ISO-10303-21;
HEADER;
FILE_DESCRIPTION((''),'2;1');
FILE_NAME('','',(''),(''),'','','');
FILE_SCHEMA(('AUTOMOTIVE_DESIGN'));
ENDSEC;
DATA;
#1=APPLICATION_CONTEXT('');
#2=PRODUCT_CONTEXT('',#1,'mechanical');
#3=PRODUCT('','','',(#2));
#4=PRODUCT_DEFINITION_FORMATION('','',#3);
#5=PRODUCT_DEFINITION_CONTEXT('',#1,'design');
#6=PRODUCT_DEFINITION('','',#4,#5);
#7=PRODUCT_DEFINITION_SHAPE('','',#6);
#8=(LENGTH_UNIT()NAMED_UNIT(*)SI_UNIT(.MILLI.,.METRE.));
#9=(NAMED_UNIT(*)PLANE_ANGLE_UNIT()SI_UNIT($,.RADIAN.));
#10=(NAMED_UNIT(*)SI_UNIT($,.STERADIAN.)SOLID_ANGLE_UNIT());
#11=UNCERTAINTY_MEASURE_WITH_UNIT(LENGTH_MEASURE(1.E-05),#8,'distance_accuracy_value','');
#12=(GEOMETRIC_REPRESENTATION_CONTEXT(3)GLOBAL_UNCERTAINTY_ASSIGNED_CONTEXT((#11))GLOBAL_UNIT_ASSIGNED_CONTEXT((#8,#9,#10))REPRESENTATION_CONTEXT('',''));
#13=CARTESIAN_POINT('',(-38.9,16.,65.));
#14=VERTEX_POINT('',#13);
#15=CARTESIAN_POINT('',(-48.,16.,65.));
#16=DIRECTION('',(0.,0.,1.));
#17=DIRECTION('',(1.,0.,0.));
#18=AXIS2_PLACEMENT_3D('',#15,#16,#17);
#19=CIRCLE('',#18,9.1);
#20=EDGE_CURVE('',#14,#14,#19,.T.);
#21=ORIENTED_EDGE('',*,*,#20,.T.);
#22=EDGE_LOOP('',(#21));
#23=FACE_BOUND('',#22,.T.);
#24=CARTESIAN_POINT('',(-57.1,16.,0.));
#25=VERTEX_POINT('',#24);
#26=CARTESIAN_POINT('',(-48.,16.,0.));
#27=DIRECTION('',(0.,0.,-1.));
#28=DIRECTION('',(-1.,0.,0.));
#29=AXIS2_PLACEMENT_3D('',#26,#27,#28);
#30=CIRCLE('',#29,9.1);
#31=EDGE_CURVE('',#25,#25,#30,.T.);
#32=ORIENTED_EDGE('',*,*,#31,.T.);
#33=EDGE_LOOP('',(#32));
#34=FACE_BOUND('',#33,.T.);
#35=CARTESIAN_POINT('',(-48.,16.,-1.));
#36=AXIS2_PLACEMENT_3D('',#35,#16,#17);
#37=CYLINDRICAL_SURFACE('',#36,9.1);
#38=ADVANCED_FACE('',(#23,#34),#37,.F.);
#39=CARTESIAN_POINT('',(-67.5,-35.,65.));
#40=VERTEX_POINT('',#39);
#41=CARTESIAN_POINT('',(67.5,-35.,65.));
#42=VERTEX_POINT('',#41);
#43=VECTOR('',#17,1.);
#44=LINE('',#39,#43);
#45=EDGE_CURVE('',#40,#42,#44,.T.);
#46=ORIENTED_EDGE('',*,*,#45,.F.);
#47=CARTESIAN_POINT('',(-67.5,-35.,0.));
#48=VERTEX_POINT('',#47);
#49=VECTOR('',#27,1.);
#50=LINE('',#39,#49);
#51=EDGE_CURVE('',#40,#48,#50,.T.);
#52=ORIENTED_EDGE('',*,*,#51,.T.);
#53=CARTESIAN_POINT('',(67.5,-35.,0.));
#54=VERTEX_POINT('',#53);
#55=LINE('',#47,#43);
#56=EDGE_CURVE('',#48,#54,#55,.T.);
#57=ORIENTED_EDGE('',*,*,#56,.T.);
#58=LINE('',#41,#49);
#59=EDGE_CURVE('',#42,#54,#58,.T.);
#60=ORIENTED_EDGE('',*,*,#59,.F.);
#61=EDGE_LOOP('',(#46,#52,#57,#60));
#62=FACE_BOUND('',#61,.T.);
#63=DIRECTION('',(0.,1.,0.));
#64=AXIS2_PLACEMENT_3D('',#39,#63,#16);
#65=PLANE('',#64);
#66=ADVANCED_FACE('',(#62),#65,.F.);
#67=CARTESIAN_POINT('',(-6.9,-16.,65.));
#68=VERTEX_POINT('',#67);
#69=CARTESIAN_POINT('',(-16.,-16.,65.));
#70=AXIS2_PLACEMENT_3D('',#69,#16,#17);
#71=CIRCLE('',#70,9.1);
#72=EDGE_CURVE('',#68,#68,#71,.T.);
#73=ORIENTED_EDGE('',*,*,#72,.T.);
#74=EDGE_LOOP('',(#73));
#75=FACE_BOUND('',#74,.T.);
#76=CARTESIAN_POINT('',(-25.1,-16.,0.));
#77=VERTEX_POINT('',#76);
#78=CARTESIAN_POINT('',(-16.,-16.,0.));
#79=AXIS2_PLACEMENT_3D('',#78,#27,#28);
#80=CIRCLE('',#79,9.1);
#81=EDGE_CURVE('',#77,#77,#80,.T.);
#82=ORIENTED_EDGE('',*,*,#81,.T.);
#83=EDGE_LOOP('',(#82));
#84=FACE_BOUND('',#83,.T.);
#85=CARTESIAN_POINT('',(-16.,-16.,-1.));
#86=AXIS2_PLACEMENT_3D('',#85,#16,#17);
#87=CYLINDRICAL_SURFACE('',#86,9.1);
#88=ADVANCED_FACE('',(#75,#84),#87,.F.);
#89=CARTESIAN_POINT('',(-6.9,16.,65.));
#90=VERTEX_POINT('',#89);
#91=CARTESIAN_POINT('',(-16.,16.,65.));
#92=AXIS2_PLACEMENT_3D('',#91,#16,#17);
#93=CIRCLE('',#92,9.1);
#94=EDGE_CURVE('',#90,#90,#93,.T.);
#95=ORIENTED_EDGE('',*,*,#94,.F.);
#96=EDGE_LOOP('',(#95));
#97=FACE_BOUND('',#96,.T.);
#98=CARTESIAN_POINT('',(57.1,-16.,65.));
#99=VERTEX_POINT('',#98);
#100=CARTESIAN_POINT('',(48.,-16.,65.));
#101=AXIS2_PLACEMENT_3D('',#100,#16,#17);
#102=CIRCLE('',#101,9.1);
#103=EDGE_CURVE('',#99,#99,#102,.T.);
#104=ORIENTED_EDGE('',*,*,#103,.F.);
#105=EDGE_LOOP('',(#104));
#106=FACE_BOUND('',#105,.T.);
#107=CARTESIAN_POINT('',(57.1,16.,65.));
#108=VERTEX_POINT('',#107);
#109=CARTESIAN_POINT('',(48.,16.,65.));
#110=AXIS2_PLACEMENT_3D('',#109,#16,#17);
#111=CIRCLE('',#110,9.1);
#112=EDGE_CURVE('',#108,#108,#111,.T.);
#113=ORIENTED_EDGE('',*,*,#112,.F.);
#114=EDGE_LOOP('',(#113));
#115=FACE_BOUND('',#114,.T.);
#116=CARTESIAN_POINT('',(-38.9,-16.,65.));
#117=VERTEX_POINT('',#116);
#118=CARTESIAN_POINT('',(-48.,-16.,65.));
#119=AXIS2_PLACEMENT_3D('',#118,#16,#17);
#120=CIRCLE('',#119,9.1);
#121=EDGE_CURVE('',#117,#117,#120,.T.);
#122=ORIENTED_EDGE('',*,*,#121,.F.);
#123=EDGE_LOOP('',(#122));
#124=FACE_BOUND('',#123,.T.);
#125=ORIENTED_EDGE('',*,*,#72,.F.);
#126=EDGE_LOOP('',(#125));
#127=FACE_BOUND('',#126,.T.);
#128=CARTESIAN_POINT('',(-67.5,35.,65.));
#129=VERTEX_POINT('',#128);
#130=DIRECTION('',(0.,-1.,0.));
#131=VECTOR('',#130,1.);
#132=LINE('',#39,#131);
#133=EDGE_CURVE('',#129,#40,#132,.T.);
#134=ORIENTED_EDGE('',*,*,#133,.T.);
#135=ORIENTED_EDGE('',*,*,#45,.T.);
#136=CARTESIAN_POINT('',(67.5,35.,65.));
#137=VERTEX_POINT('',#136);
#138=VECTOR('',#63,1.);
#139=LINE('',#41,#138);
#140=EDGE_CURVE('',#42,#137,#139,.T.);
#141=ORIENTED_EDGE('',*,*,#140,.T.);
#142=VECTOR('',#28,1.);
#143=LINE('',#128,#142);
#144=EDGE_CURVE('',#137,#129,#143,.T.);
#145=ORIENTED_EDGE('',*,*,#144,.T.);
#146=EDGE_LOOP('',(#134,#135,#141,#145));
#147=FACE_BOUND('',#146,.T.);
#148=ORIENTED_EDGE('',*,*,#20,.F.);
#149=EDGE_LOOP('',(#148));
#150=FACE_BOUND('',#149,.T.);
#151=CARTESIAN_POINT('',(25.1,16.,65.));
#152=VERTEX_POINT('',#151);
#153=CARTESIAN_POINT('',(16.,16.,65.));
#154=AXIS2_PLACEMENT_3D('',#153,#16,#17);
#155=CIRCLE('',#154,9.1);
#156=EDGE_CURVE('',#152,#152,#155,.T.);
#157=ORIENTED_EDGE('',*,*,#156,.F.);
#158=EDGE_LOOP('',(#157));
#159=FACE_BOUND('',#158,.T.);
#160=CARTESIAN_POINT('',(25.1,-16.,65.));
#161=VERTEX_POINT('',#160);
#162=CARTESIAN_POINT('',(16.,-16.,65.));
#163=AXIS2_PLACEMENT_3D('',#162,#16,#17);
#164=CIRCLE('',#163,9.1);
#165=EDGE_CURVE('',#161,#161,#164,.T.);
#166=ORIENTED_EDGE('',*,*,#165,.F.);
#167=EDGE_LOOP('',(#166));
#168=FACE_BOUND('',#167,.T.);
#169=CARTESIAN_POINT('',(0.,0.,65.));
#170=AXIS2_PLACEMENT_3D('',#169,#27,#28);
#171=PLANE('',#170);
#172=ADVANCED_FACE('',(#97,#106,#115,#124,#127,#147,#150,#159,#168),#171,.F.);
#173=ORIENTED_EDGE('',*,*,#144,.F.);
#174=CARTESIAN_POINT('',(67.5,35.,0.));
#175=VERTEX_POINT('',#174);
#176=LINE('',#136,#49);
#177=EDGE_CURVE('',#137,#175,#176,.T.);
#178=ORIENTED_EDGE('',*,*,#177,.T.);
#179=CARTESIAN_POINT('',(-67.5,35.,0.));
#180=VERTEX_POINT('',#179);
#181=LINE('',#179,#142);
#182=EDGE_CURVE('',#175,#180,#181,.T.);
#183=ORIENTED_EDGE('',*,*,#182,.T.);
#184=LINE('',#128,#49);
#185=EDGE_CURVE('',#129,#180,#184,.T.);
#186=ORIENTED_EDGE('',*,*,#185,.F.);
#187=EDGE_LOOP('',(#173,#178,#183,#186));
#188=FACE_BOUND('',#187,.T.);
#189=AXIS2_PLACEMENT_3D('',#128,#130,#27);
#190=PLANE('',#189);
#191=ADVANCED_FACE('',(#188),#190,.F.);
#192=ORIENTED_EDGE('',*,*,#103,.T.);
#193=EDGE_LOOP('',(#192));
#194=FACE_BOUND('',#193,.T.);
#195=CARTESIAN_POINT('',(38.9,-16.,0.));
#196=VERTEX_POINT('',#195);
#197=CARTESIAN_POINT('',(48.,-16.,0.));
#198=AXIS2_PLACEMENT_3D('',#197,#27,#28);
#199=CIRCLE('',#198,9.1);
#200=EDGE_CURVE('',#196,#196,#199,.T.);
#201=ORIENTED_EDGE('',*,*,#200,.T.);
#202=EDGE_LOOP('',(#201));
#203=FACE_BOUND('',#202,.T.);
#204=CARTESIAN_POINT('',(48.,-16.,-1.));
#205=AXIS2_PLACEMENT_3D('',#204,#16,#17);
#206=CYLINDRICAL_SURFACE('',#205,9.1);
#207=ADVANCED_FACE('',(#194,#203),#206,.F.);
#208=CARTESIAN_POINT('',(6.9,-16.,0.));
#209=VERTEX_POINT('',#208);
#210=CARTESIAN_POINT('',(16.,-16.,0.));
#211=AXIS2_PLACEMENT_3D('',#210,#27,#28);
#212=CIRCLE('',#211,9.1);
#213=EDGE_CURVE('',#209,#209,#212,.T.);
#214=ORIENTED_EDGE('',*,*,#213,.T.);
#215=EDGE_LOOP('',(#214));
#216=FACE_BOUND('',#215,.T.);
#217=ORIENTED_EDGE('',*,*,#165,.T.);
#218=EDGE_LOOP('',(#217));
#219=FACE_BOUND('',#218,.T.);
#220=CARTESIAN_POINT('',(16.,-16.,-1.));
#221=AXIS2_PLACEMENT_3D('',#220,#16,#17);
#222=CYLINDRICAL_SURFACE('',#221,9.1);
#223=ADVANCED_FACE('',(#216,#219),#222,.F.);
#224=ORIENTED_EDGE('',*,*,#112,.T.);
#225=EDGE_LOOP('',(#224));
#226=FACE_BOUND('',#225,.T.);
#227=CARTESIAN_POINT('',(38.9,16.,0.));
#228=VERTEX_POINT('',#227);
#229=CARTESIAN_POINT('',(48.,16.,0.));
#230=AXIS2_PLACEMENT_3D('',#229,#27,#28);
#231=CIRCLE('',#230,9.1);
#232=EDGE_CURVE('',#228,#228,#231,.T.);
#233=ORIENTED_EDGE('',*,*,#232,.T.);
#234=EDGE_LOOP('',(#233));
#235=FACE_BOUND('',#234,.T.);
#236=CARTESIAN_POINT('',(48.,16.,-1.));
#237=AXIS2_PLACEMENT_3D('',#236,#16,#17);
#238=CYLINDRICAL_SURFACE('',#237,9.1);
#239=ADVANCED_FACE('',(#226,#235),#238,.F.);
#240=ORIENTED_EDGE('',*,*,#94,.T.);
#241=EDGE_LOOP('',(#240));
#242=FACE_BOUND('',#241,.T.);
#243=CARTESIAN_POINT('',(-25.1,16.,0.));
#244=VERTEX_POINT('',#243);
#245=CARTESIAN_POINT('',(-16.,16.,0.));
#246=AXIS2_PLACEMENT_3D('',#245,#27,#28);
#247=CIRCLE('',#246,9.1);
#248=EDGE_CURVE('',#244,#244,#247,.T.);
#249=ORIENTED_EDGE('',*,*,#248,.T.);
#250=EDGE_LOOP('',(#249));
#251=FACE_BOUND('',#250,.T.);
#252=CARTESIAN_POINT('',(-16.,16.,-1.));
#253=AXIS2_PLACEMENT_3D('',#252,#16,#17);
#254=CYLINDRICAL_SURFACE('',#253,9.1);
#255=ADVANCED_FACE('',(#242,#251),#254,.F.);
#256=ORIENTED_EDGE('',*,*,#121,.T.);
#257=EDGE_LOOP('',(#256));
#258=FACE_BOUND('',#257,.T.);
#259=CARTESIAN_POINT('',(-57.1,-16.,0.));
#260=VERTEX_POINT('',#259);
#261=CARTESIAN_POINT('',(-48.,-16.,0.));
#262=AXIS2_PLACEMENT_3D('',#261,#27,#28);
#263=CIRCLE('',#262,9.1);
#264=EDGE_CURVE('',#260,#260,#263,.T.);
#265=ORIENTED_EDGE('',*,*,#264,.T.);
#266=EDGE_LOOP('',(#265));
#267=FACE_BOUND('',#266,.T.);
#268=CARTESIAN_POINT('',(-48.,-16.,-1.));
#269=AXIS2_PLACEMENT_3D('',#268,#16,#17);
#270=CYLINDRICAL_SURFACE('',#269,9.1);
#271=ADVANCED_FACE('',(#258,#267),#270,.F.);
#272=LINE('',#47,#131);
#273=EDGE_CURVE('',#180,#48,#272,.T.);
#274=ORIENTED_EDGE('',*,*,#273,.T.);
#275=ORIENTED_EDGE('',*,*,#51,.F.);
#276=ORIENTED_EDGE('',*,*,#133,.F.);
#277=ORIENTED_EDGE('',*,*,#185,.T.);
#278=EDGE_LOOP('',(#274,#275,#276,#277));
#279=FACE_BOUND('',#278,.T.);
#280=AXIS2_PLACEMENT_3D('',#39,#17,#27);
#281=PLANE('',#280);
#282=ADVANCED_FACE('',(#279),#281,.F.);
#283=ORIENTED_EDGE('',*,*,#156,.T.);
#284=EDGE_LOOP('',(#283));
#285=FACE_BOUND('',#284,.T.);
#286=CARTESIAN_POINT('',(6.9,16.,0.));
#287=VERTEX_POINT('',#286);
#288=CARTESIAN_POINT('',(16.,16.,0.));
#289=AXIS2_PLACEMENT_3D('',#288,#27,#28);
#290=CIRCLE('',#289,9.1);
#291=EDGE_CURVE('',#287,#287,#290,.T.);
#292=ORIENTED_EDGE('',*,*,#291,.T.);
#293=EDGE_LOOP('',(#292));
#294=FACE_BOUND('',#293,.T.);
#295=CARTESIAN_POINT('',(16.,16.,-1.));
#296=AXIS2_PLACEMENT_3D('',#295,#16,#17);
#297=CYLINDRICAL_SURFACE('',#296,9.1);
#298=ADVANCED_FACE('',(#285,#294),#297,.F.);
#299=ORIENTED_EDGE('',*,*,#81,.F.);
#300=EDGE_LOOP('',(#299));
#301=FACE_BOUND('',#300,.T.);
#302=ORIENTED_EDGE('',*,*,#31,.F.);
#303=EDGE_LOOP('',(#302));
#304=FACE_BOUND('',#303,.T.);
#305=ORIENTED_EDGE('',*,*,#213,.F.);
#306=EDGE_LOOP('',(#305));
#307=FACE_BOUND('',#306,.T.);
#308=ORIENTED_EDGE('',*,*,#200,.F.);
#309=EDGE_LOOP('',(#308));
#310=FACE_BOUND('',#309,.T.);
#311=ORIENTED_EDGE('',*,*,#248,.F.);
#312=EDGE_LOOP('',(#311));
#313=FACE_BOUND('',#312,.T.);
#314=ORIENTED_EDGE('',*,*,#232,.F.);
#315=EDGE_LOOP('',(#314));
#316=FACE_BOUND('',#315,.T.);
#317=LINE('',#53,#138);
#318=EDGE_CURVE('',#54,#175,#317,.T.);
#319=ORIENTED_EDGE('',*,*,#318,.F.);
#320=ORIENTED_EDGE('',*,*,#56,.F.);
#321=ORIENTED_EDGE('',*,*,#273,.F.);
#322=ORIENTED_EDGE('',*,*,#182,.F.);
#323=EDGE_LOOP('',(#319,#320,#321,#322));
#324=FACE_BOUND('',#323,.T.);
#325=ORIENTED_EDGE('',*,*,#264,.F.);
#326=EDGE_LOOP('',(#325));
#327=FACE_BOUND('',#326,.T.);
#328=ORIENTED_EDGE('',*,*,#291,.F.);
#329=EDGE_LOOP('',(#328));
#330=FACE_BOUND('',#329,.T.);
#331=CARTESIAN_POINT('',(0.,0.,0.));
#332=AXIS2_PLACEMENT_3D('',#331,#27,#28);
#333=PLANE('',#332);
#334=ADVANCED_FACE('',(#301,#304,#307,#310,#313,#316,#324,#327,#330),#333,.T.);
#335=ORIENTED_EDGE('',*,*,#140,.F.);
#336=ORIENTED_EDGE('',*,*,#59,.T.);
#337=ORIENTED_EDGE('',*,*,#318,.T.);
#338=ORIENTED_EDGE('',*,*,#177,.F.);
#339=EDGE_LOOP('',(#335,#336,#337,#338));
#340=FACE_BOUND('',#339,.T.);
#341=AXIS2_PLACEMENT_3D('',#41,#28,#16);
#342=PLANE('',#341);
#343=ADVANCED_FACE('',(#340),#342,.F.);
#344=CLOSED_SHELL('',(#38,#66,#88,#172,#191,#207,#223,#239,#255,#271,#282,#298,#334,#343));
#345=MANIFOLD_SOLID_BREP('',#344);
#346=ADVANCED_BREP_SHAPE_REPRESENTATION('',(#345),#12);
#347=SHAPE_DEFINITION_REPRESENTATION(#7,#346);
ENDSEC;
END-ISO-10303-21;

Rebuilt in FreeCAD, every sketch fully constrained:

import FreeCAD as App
import Part
import Sketcher
Q = App.Units.Quantity


def add_polygon(sketch, points):
    """Adds a closed chain of lines whose ends are joined by coincident constraints."""
    first, n = sketch.GeometryCount, len(points)
    for a, b in zip(points, points[1:] + points[:1]):
        sketch.addGeometry(Part.LineSegment(App.Vector(*a, 0), App.Vector(*b, 0)), False)
    for i in range(n):
        sketch.addConstraint(Sketcher.Constraint("Coincident", first + i, 2, first + (i + 1) % n, 1))

doc = App.newDocument("Part")
body = doc.addObject("PartDesign::Body", "Body")

# Sketch on XY plane
sketch1 = doc.addObject("Sketcher::SketchObject", "Sketch")
body.addObject(sketch1)
sketch1.AttachmentSupport = (doc.XY_Plane, [""])
sketch1.MapMode = "FlatFace"
add_polygon(sketch1, [(-68, 35), (-68, -35), (68, -35), (68, 35)])  # lines 0-3
sketch1.addConstraint(Sketcher.Constraint("Vertical", 0))
sketch1.addConstraint(Sketcher.Constraint("Horizontal", 1))
sketch1.addConstraint(Sketcher.Constraint("Vertical", 2))
sketch1.addConstraint(Sketcher.Constraint("Horizontal", 3))
sketch1.addConstraint(Sketcher.Constraint("Symmetric", 0, 2, 2, 2, -1, 1))
sketch1.addConstraint(Sketcher.Constraint("DistanceX", 1, 1, 1, 2, Q("135 mm")))
sketch1.addConstraint(Sketcher.Constraint("DistanceY", 0, 2, 0, 1, Q("70 mm")))
pad1 = doc.addObject("PartDesign::Pad", "Pad")
body.addObject(pad1)
pad1.Profile = sketch1
pad1.Length = 65

# Sketch on XY plane
sketch2 = doc.addObject("Sketcher::SketchObject", "Sketch001")
body.addObject(sketch2)
sketch2.AttachmentSupport = (doc.XY_Plane, [""])
sketch2.MapMode = "FlatFace"
sketch2.AttachmentOffset = App.Placement(App.Vector(0, 0, 65), App.Rotation())
sketch2.addGeometry(Part.Circle(App.Vector(-48, -16, 0), App.Vector(0, 0, 1), 9), False)
sketch2.addGeometry(Part.Circle(App.Vector(-16, -16, 0), App.Vector(0, 0, 1), 9), False)
sketch2.addGeometry(Part.Circle(App.Vector(16, -16, 0), App.Vector(0, 0, 1), 9), False)
sketch2.addGeometry(Part.Circle(App.Vector(48, -16, 0), App.Vector(0, 0, 1), 9), False)
sketch2.addGeometry(Part.Circle(App.Vector(-48, 16, 0), App.Vector(0, 0, 1), 9), False)
sketch2.addGeometry(Part.Circle(App.Vector(-16, 16, 0), App.Vector(0, 0, 1), 9), False)
sketch2.addGeometry(Part.Circle(App.Vector(16, 16, 0), App.Vector(0, 0, 1), 9), False)
sketch2.addGeometry(Part.Circle(App.Vector(48, 16, 0), App.Vector(0, 0, 1), 9), False)
sketch2.addConstraint(Sketcher.Constraint("Equal", 0, 1))
sketch2.addConstraint(Sketcher.Constraint("Equal", 1, 2))
sketch2.addConstraint(Sketcher.Constraint("Equal", 2, 3))
sketch2.addConstraint(Sketcher.Constraint("Equal", 3, 4))
sketch2.addConstraint(Sketcher.Constraint("Equal", 4, 5))
sketch2.addConstraint(Sketcher.Constraint("Equal", 5, 6))
sketch2.addConstraint(Sketcher.Constraint("Equal", 6, 7))
sketch2.addConstraint(Sketcher.Constraint("Symmetric", 3, 3, 4, 3, -1, 1))
sketch2.addConstraint(Sketcher.Constraint("Symmetric", 2, 3, 5, 3, -1, 1))
sketch2.addConstraint(Sketcher.Constraint("Symmetric", 1, 3, 6, 3, -1, 1))
sketch2.addConstraint(Sketcher.Constraint("Symmetric", 0, 3, 7, 3, -1, 1))
sketch2.addConstraint(Sketcher.Constraint("Symmetric", 1, 3, 2, 3, -2))
sketch2.addConstraint(Sketcher.Constraint("Symmetric", 0, 3, 3, 3, -2))
sketch2.addConstraint(Sketcher.Constraint("Horizontal", 0, 3, 1, 3))
sketch2.addConstraint(Sketcher.Constraint("Diameter", 0, Q("18.2 mm")))
sketch2.addConstraint(Sketcher.Constraint("DistanceX", 0, 3, -1, 1, Q("48 mm")))
sketch2.addConstraint(Sketcher.Constraint("DistanceY", 0, 3, -1, 1, Q("16 mm")))
sketch2.addConstraint(Sketcher.Constraint("DistanceX", 1, 3, -1, 1, Q("16 mm")))
pocket1 = doc.addObject("PartDesign::Pocket", "Pocket")
body.addObject(pocket1)
pocket1.Profile = sketch2
pocket1.Length = 66

doc.recompute()
